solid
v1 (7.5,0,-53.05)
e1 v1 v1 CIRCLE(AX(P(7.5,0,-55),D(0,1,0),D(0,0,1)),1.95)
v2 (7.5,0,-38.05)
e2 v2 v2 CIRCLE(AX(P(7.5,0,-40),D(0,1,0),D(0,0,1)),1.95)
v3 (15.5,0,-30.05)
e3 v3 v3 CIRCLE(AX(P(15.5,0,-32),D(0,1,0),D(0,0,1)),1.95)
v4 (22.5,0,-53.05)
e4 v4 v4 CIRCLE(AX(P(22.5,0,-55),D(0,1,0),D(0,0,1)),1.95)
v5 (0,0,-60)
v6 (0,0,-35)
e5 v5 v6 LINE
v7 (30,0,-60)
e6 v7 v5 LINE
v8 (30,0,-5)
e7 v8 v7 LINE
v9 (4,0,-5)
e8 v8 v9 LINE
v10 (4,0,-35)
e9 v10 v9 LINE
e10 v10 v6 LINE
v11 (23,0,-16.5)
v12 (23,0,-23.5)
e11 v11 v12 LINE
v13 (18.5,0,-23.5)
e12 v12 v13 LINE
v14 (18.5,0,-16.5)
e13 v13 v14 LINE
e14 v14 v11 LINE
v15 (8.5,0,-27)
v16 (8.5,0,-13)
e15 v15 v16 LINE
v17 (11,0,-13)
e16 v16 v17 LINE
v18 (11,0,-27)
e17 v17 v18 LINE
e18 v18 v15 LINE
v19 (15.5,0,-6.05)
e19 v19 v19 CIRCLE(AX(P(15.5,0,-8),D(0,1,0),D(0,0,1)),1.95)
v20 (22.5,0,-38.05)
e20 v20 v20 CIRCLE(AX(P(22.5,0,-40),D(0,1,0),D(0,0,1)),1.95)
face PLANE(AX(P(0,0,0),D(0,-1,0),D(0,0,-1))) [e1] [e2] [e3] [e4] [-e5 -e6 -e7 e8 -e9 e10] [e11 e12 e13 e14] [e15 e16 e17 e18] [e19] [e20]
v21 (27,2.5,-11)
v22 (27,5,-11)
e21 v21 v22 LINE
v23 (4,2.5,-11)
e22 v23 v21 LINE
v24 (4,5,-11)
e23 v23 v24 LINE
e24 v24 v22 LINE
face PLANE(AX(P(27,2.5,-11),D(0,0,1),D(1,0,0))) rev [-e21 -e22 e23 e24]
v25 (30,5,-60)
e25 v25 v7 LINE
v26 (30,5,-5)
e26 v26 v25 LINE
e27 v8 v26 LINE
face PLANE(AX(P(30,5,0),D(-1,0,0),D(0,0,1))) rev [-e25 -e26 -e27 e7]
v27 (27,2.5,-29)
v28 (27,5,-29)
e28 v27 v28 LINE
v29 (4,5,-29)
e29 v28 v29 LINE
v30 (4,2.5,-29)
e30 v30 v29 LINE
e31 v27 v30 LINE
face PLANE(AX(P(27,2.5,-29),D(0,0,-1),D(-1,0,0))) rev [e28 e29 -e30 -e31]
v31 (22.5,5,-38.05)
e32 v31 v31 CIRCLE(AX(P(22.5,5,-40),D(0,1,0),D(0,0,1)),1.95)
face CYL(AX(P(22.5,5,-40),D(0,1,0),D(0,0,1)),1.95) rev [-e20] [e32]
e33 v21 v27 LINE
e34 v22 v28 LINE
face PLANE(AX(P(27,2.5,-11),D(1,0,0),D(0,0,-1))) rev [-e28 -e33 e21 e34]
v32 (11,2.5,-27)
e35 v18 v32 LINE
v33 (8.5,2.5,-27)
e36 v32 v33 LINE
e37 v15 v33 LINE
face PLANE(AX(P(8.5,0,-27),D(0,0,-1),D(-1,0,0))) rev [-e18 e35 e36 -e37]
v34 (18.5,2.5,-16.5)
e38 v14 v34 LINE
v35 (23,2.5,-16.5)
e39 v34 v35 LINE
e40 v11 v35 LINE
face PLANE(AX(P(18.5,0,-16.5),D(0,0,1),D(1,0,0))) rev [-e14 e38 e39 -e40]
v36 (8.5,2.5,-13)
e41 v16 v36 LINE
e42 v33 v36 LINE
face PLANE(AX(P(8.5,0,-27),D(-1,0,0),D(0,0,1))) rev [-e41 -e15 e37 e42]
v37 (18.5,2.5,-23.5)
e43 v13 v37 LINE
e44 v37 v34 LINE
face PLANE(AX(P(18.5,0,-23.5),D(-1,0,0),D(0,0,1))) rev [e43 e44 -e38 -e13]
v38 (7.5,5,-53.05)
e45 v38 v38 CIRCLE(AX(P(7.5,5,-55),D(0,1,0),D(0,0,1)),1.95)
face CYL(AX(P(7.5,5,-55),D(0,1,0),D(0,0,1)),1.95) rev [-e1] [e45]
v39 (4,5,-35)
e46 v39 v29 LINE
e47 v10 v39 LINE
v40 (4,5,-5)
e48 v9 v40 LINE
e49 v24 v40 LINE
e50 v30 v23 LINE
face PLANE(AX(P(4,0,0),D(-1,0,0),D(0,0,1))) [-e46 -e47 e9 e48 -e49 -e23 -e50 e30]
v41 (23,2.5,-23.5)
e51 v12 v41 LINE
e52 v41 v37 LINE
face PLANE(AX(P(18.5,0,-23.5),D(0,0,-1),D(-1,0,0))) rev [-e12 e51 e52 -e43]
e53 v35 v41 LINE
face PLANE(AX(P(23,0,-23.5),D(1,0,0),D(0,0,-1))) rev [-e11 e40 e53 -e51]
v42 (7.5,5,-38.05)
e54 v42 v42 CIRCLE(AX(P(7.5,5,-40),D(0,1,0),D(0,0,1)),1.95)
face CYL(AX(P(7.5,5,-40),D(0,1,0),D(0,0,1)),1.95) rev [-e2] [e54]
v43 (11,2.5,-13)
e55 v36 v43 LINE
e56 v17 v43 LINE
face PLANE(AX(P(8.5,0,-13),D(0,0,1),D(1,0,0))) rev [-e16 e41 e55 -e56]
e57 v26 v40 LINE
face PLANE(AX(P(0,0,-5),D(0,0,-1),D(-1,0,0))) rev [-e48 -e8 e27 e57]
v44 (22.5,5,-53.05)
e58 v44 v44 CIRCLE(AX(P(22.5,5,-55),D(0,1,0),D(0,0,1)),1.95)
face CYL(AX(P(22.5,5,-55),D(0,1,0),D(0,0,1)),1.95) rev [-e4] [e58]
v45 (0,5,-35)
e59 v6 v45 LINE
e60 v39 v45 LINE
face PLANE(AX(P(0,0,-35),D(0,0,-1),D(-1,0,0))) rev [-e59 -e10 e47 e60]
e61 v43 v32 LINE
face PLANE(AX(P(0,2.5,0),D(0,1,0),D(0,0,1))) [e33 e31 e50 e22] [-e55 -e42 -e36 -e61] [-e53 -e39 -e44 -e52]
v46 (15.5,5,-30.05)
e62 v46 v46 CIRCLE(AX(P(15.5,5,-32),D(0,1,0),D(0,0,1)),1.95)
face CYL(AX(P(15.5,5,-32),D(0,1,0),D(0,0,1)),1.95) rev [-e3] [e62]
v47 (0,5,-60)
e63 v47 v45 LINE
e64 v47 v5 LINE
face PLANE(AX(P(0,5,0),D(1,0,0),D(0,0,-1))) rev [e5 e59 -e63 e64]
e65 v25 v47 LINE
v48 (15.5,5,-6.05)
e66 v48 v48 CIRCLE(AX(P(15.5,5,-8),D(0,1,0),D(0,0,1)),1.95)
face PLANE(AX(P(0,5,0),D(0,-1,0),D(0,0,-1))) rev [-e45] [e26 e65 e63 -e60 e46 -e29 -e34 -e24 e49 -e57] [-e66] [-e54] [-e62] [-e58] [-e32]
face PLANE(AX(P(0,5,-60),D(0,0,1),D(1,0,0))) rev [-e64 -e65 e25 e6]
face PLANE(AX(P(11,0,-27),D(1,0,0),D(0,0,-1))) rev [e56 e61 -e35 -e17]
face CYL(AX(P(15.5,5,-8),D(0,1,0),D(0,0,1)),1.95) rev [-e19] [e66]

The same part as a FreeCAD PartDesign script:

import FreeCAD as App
import Part
import Sketcher

V = App.Vector
Q = App.Units.Quantity


def add_polygon(sketch, points):
    """Adds a closed chain of lines whose ends are joined by coincident constraints."""
    first, n = sketch.GeometryCount, len(points)
    for a, b in zip(points, points[1:] + points[:1]):
        sketch.addGeometry(Part.LineSegment(App.Vector(*a, 0), App.Vector(*b, 0)), False)
    for i in range(n):
        sketch.addConstraint(Sketcher.Constraint("Coincident", first + i, 2, first + (i + 1) % n, 1))

doc = App.newDocument("Part")
body = doc.addObject("PartDesign::Body", "Body")

# Sketch on XZ plane
sketch1 = doc.addObject("Sketcher::SketchObject", "Sketch")
body.addObject(sketch1)
sketch1.AttachmentSupport = (doc.XZ_Plane, [""])
sketch1.MapMode = "FlatFace"
add_polygon(sketch1, [(0, -60), (0, 0), (30, 0), (30, -60)])  # lines 0-3
sketch1.addConstraint(Sketcher.Constraint("Vertical", 0))
sketch1.addConstraint(Sketcher.Constraint("Horizontal", 1))
sketch1.addConstraint(Sketcher.Constraint("Vertical", 2))
sketch1.addConstraint(Sketcher.Constraint("Horizontal", 3))
sketch1.addConstraint(Sketcher.Constraint("Coincident", 0, 2, -1, 1))
sketch1.addConstraint(Sketcher.Constraint("DistanceX", 1, 1, 1, 2, Q("30 mm")))
sketch1.addConstraint(Sketcher.Constraint("DistanceY", 0, 1, 0, 2, Q("60 mm")))
pad1 = doc.addObject("PartDesign::Pad", "Pad")
body.addObject(pad1)
pad1.Profile = sketch1
pad1.Length = 5
pad1.Reversed = True

# Sketch on XZ plane
sketch2 = doc.addObject("Sketcher::SketchObject", "Sketch001")
body.addObject(sketch2)
sketch2.AttachmentSupport = (doc.XZ_Plane, [""])
sketch2.MapMode = "FlatFace"
sketch2.AttachmentOffset = App.Placement(V(0, 0, -5), App.Rotation())
sketch2.addGeometry(Part.Circle(V(7.5, -40, 0), V(0, 0, 1), 1.95), False)
sketch2.addGeometry(Part.Circle(V(22.5, -40, 0), V(0, 0, 1), 1.95), False)
sketch2.addGeometry(Part.Circle(V(22.5, -55, 0), V(0, 0, 1), 1.95), False)
sketch2.addGeometry(Part.Circle(V(7.5, -55, 0), V(0, 0, 1), 1.95), False)
sketch2.addConstraint(Sketcher.Constraint("Equal", 0, 1))
sketch2.addConstraint(Sketcher.Constraint("Equal", 1, 2))
sketch2.addConstraint(Sketcher.Constraint("Equal", 2, 3))
sketch2.addConstraint(Sketcher.Constraint("Horizontal", 0, 3, 1, 3))
sketch2.addConstraint(Sketcher.Constraint("Horizontal", 2, 3, 3, 3))
sketch2.addConstraint(Sketcher.Constraint("Vertical", 1, 3, 2, 3))
sketch2.addConstraint(Sketcher.Constraint("Vertical", 0, 3, 3, 3))
sketch2.addConstraint(Sketcher.Constraint("Diameter", 0, Q("3.9 mm")))
sketch2.addConstraint(Sketcher.Constraint("DistanceY", 0, 3, -1, 1, Q("40 mm")))
sketch2.addConstraint(Sketcher.Constraint("DistanceY", 2, 3, -1, 1, Q("55 mm")))
sketch2.addConstraint(Sketcher.Constraint("DistanceX", 0, 3, 1, 3, Q("15 mm")))
sketch2.addConstraint(Sketcher.Constraint("DistanceX", -1, 1, 0, 3, Q("7.5 mm")))
doc.recompute()
hole = doc.addObject("PartDesign::Hole", "Hole")
body.addObject(hole)
hole.Profile = sketch2
hole.ThreadType = "None"
hole.Diameter = 3.9
hole.DepthType = "ThroughAll"
hole.Reversed = True

# Sketch on XZ plane
sketch3 = doc.addObject("Sketcher::SketchObject", "Sketch002")
body.addObject(sketch3)
sketch3.AttachmentSupport = (doc.XZ_Plane, [""])
sketch3.MapMode = "FlatFace"
sketch3.AttachmentOffset = App.Placement(V(0, 0, -5), App.Rotation())
add_polygon(sketch3, [(4, -35), (0, -35), (0, 0), (30, 0), (30, -5), (4, -5)])  # lines 0-5
sketch3.addConstraint(Sketcher.Constraint("Horizontal", 0))
sketch3.addConstraint(Sketcher.Constraint("Vertical", 1))
sketch3.addConstraint(Sketcher.Constraint("Horizontal", 2))
sketch3.addConstraint(Sketcher.Constraint("Vertical", 3))
sketch3.addConstraint(Sketcher.Constraint("Horizontal", 4))
sketch3.addConstraint(Sketcher.Constraint("Vertical", 5))
sketch3.addConstraint(Sketcher.Constraint("Coincident", 1, 2, -1, 1))
sketch3.addConstraint(Sketcher.Constraint("Equal", 2, 5))
sketch3.addConstraint(Sketcher.Constraint("DistanceX", 0, 2, 0, 1, Q("4 mm")))
sketch3.addConstraint(Sketcher.Constraint("DistanceX", 2, 1, 2, 2, Q("30 mm")))
sketch3.addConstraint(Sketcher.Constraint("DistanceY", 1, 1, 1, 2, Q("35 mm")))
pocket1 = doc.addObject("PartDesign::Pocket", "Pocket")
body.addObject(pocket1)
pocket1.Profile = sketch3
pocket1.Type = "ThroughAll"
pocket1.Reversed = True

# Sketch on XZ plane
sketch4 = doc.addObject("Sketcher::SketchObject", "Sketch003")
body.addObject(sketch4)
sketch4.AttachmentSupport = (doc.XZ_Plane, [""])
sketch4.MapMode = "FlatFace"
sketch4.AttachmentOffset = App.Placement(V(0, 0, -5), App.Rotation())
sketch4.addGeometry(Part.Circle(V(15.5, -32, 0), V(0, 0, 1), 1.95), False)
sketch4.addGeometry(Part.Circle(V(15.5, -8, 0), V(0, 0, 1), 1.95), False)
sketch4.addConstraint(Sketcher.Constraint("Equal", 0, 1))
sketch4.addConstraint(Sketcher.Constraint("Vertical", 0, 3, 1, 3))
sketch4.addConstraint(Sketcher.Constraint("Diameter", 0, Q("3.9 mm")))
sketch4.addConstraint(Sketcher.Constraint("DistanceY", 0, 3, -1, 1, Q("32 mm")))
sketch4.addConstraint(Sketcher.Constraint("DistanceY", 1, 3, -1, 1, Q("8 mm")))
sketch4.addConstraint(Sketcher.Constraint("DistanceX", -1, 1, 0, 3, Q("15.5 mm")))
doc.recompute()
hole2 = doc.addObject("PartDesign::Hole", "Hole001")
body.addObject(hole2)
hole2.Profile = sketch4
hole2.ThreadType = "None"
hole2.Diameter = 3.9
hole2.DepthType = "Dimension"
hole2.Depth = 5
hole2.DrillPoint = "Angled"
hole2.DrillPointAngle = 118
hole2.Reversed = True

# Sketch on XZ plane
sketch5 = doc.addObject("Sketcher::SketchObject", "Sketch004")
body.addObject(sketch5)
sketch5.AttachmentSupport = (doc.XZ_Plane, [""])
sketch5.MapMode = "FlatFace"
sketch5.AttachmentOffset = App.Placement(V(0, 0, -5), App.Rotation())
add_polygon(sketch5, [(4, -29), (4, -11), (27, -11), (27, -29)])  # lines 0-3
sketch5.addConstraint(Sketcher.Constraint("Vertical", 0))
sketch5.addConstraint(Sketcher.Constraint("Horizontal", 1))
sketch5.addConstraint(Sketcher.Constraint("Vertical", 2))
sketch5.addConstraint(Sketcher.Constraint("Horizontal", 3))
sketch5.addConstraint(Sketcher.Constraint("DistanceX", 1, 1, 1, 2, Q("23 mm")))
sketch5.addConstraint(Sketcher.Constraint("DistanceY", 0, 1, 0, 2, Q("18 mm")))
sketch5.addConstraint(Sketcher.Constraint("DistanceX", -1, 1, 0, 2, Q("4 mm")))
sketch5.addConstraint(Sketcher.Constraint("DistanceY", 0, 2, -1, 1, Q("11 mm")))
pocket2 = doc.addObject("PartDesign::Pocket", "Pocket001")
body.addObject(pocket2)
pocket2.Profile = sketch5
pocket2.Length = 2.5
pocket2.Reversed = True

# Sketch on XZ plane
sketch6 = doc.addObject("Sketcher::SketchObject", "Sketch005")
body.addObject(sketch6)
sketch6.AttachmentSupport = (doc.XZ_Plane, [""])
sketch6.MapMode = "FlatFace"
sketch6.AttachmentOffset = App.Placement(V(0, 0, -2.5), App.Rotation())
add_polygon(sketch6, [(8.5, -27), (8.5, -13), (11, -13), (11, -27)])  # lines 0-3
add_polygon(sketch6, [(18.5, -23.5), (18.5, -16.5), (23, -16.5), (23, -23.5)])  # lines 4-7
sketch6.addConstraint(Sketcher.Constraint("Vertical", 0))
sketch6.addConstraint(Sketcher.Constraint("Horizontal", 1))
sketch6.addConstraint(Sketcher.Constraint("Vertical", 2))
sketch6.addConstraint(Sketcher.Constraint("Horizontal", 3))
sketch6.addConstraint(Sketcher.Constraint("Vertical", 4))
sketch6.addConstraint(Sketcher.Constraint("Horizontal", 5))
sketch6.addConstraint(Sketcher.Constraint("Vertical", 6))
sketch6.addConstraint(Sketcher.Constraint("Horizontal", 7))
sketch6.addConstraint(Sketcher.Constraint("DistanceY", 0, 1, 0, 2, Q("14 mm")))
sketch6.addConstraint(Sketcher.Constraint("DistanceY", 4, 1, 4, 2, Q("7 mm")))
sketch6.addConstraint(Sketcher.Constraint("DistanceX", 1, 1, 1, 2, Q("2.5 mm")))
sketch6.addConstraint(Sketcher.Constraint("DistanceX", 5, 1, 5, 2, Q("4.5 mm")))
sketch6.addConstraint(Sketcher.Constraint("DistanceY", 0, 2, -1, 1, Q("13 mm")))
sketch6.addConstraint(Sketcher.Constraint("DistanceX", -1, 1, 1, 2, Q("11 mm")))
sketch6.addConstraint(Sketcher.Constraint("DistanceX", -1, 1, 5, 2, Q("23 mm")))
sketch6.addConstraint(Sketcher.Constraint("DistanceY", 4, 2, -1, 1, Q("16.5 mm")))
pocket3 = doc.addObject("PartDesign::Pocket", "Pocket002")
body.addObject(pocket3)
pocket3.Profile = sketch6
pocket3.Type = "ThroughAll"
pocket3.Reversed = True

doc.recompute()
